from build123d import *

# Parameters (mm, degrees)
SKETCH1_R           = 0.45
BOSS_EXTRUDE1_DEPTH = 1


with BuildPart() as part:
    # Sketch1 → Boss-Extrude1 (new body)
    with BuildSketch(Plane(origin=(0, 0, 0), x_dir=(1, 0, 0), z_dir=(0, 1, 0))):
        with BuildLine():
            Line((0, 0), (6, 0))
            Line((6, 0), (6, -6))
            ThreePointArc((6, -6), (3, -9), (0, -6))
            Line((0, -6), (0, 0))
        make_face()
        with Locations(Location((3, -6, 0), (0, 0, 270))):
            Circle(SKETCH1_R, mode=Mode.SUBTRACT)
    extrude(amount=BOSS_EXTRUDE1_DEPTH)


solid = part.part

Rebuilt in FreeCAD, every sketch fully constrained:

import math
import FreeCAD as App
import Part
import Sketcher
from FreeCAD import Vector

doc = App.newDocument("Part")
body = doc.addObject("PartDesign::Body", "Body")

# Sketch on XZ plane
sketch1 = body.newObject("Sketcher::SketchObject", "Sketch")
sketch1.AttachmentSupport = (doc.getObject("XZ_Plane"), [""])
sketch1.MapMode = "FlatFace"
sketch1.addGeometry([
    Part.LineSegment(Vector(6, 0, 0), Vector(0, 0, 0)),  # 0
    Part.LineSegment(Vector(0, 0, 0), Vector(0, 6, 0)),  # 1
    Part.ArcOfCircle(Part.Circle(Vector(3, 6, 0), Vector(0, 0, 1), 3), math.radians(0), math.radians(180)),  # 2
    Part.LineSegment(Vector(6, 6, 0), Vector(6, 0, 0)),  # 3
    Part.Circle(Vector(3, 6, 0), Vector(0, 0, 1), 0.45),  # 4
], False)
sketch1.addConstraint([
    Sketcher.Constraint("Coincident", 0, 2, 1, 1),
    Sketcher.Constraint("Tangent", 1, 2, 2, 2),
    Sketcher.Constraint("Tangent", 2, 1, 3, 1),
    Sketcher.Constraint("Coincident", 3, 2, 0, 1),
    Sketcher.Constraint("Horizontal", 0),
    Sketcher.Constraint("Vertical", 1),
    Sketcher.Constraint("Vertical", 3),
    Sketcher.Constraint("Coincident", 0, 2, -1, 1),
    Sketcher.Constraint("Coincident", 4, 3, 2, 3),
    Sketcher.Constraint("Equal", 0, 1),
    Sketcher.Constraint("Radius", 2, 3.0),
    Sketcher.Constraint("Diameter", 4, 0.9),
])
pad1 = body.newObject("PartDesign::Pad", "Pad")
pad1.Profile = sketch1
pad1.Length = 1
pad1.Reversed = True

doc.recompute()
